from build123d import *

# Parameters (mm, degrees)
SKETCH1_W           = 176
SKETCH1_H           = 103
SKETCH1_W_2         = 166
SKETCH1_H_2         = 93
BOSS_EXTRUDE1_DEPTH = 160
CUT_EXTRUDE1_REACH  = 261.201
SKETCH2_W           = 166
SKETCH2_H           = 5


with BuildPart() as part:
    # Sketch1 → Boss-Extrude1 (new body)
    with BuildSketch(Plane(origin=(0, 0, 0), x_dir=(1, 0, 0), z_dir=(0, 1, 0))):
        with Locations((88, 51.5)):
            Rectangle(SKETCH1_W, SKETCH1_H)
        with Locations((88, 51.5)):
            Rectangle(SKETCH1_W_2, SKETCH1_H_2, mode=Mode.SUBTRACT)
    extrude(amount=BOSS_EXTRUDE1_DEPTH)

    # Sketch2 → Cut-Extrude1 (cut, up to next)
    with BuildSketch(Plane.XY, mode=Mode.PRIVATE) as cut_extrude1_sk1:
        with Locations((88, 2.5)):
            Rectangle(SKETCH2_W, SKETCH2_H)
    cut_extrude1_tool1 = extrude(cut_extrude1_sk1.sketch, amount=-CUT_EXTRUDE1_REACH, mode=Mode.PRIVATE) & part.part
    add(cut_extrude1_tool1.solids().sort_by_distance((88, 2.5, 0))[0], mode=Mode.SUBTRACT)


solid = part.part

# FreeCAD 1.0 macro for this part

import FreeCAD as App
import Part
import Sketcher

V = App.Vector
Q = App.Units.Quantity

doc = App.newDocument("Part")
body = doc.addObject("PartDesign::Body", "Body")

# Sketch on XZ plane
sketch1 = doc.addObject("Sketcher::SketchObject", "Sketch")
body.addObject(sketch1)
sketch1.AttachmentSupport = (doc.XZ_Plane, [""])
sketch1.MapMode = "FlatFace"
sketch1.addGeometry(Part.LineSegment(V(0, -103, 0), V(0, 0, 0)), False)
sketch1.addGeometry(Part.LineSegment(V(0, 0, 0), V(176, 0, 0)), False)
sketch1.addGeometry(Part.LineSegment(V(176, 0, 0), V(176, -103, 0)), False)
sketch1.addGeometry(Part.LineSegment(V(176, -103, 0), V(0, -103, 0)), False)
sketch1.addGeometry(Part.LineSegment(V(171, -5, 0), V(5, -5, 0)), False)
sketch1.addGeometry(Part.LineSegment(V(5, -5, 0), V(5, -98, 0)), False)
sketch1.addGeometry(Part.LineSegment(V(5, -98, 0), V(171, -98, 0)), False)
sketch1.addGeometry(Part.LineSegment(V(171, -98, 0), V(171, -5, 0)), False)
sketch1.addConstraint(Sketcher.Constraint("Coincident", 0, 2, 1, 1))
sketch1.addConstraint(Sketcher.Constraint("Coincident", 1, 2, 2, 1))
sketch1.addConstraint(Sketcher.Constraint("Coincident", 2, 2, 3, 1))
sketch1.addConstraint(Sketcher.Constraint("Coincident", 3, 2, 0, 1))
sketch1.addConstraint(Sketcher.Constraint("Coincident", 4, 2, 5, 1))
sketch1.addConstraint(Sketcher.Constraint("Coincident", 5, 2, 6, 1))
sketch1.addConstraint(Sketcher.Constraint("Coincident", 6, 2, 7, 1))
sketch1.addConstraint(Sketcher.Constraint("Coincident", 7, 2, 4, 1))
sketch1.addConstraint(Sketcher.Constraint("Vertical", 0))
sketch1.addConstraint(Sketcher.Constraint("Horizontal", 1))
sketch1.addConstraint(Sketcher.Constraint("Vertical", 2))
sketch1.addConstraint(Sketcher.Constraint("Horizontal", 3))
sketch1.addConstraint(Sketcher.Constraint("Horizontal", 4))
sketch1.addConstraint(Sketcher.Constraint("Vertical", 5))
sketch1.addConstraint(Sketcher.Constraint("Horizontal", 6))
sketch1.addConstraint(Sketcher.Constraint("Vertical", 7))
sketch1.addConstraint(Sketcher.Constraint("Coincident", 0, 2, -1, 1))
sketch1.addConstraint(Sketcher.Constraint("DistanceX", 1, 1, 1, 2, Q("176 mm")))
sketch1.addConstraint(Sketcher.Constraint("DistanceX", 4, 2, 4, 1, Q("166 mm")))
sketch1.addConstraint(Sketcher.Constraint("DistanceY", 0, 1, 0, 2, Q("103 mm")))
sketch1.addConstraint(Sketcher.Constraint("DistanceY", 5, 2, 5, 1, Q("93 mm")))
sketch1.addConstraint(Sketcher.Constraint("DistanceX", -1, 1, 4, 2, Q("5 mm")))
sketch1.addConstraint(Sketcher.Constraint("DistanceY", 4, 2, -1, 1, Q("5 mm")))
pad1 = doc.addObject("PartDesign::Pad", "Pad")
body.addObject(pad1)
pad1.Profile = sketch1
pad1.Length = 160
pad1.Reversed = True

# Sketch on XY plane
sketch2 = doc.addObject("Sketcher::SketchObject", "Sketch001")
body.addObject(sketch2)
sketch2.AttachmentSupport = (doc.XY_Plane, [""])
sketch2.MapMode = "FlatFace"
sketch2.addGeometry(Part.LineSegment(V(5, 5, 0), V(5, 0, 0)), False)
sketch2.addGeometry(Part.LineSegment(V(5, 0, 0), V(171, 0, 0)), False)
sketch2.addGeometry(Part.LineSegment(V(171, 0, 0), V(171, 5, 0)), False)
sketch2.addGeometry(Part.LineSegment(V(171, 5, 0), V(5, 5, 0)), False)
sketch2.addConstraint(Sketcher.Constraint("Coincident", 0, 2, 1, 1))
sketch2.addConstraint(Sketcher.Constraint("Coincident", 1, 2, 2, 1))
sketch2.addConstraint(Sketcher.Constraint("Coincident", 2, 2, 3, 1))
sketch2.addConstraint(Sketcher.Constraint("Coincident", 3, 2, 0, 1))
sketch2.addConstraint(Sketcher.Constraint("Vertical", 0))
sketch2.addConstraint(Sketcher.Constraint("Horizontal", 1))
sketch2.addConstraint(Sketcher.Constraint("Vertical", 2))
sketch2.addConstraint(Sketcher.Constraint("Horizontal", 3))
sketch2.addConstraint(Sketcher.Constraint("PointOnObject", 0, 2, -1))
sketch2.addConstraint(Sketcher.Constraint("DistanceX", 1, 1, 1, 2, Q("166 mm")))
sketch2.addConstraint(Sketcher.Constraint("DistanceY", 0, 2, 0, 1, Q("5 mm")))
sketch2.addConstraint(Sketcher.Constraint("DistanceX", -1, 1, 0, 2, Q("5 mm")))
pocket1 = doc.addObject("PartDesign::Pocket", "Pocket")
body.addObject(pocket1)
pocket1.Profile = sketch2
pocket1.Type = "UpToFirst"

doc.recompute()
